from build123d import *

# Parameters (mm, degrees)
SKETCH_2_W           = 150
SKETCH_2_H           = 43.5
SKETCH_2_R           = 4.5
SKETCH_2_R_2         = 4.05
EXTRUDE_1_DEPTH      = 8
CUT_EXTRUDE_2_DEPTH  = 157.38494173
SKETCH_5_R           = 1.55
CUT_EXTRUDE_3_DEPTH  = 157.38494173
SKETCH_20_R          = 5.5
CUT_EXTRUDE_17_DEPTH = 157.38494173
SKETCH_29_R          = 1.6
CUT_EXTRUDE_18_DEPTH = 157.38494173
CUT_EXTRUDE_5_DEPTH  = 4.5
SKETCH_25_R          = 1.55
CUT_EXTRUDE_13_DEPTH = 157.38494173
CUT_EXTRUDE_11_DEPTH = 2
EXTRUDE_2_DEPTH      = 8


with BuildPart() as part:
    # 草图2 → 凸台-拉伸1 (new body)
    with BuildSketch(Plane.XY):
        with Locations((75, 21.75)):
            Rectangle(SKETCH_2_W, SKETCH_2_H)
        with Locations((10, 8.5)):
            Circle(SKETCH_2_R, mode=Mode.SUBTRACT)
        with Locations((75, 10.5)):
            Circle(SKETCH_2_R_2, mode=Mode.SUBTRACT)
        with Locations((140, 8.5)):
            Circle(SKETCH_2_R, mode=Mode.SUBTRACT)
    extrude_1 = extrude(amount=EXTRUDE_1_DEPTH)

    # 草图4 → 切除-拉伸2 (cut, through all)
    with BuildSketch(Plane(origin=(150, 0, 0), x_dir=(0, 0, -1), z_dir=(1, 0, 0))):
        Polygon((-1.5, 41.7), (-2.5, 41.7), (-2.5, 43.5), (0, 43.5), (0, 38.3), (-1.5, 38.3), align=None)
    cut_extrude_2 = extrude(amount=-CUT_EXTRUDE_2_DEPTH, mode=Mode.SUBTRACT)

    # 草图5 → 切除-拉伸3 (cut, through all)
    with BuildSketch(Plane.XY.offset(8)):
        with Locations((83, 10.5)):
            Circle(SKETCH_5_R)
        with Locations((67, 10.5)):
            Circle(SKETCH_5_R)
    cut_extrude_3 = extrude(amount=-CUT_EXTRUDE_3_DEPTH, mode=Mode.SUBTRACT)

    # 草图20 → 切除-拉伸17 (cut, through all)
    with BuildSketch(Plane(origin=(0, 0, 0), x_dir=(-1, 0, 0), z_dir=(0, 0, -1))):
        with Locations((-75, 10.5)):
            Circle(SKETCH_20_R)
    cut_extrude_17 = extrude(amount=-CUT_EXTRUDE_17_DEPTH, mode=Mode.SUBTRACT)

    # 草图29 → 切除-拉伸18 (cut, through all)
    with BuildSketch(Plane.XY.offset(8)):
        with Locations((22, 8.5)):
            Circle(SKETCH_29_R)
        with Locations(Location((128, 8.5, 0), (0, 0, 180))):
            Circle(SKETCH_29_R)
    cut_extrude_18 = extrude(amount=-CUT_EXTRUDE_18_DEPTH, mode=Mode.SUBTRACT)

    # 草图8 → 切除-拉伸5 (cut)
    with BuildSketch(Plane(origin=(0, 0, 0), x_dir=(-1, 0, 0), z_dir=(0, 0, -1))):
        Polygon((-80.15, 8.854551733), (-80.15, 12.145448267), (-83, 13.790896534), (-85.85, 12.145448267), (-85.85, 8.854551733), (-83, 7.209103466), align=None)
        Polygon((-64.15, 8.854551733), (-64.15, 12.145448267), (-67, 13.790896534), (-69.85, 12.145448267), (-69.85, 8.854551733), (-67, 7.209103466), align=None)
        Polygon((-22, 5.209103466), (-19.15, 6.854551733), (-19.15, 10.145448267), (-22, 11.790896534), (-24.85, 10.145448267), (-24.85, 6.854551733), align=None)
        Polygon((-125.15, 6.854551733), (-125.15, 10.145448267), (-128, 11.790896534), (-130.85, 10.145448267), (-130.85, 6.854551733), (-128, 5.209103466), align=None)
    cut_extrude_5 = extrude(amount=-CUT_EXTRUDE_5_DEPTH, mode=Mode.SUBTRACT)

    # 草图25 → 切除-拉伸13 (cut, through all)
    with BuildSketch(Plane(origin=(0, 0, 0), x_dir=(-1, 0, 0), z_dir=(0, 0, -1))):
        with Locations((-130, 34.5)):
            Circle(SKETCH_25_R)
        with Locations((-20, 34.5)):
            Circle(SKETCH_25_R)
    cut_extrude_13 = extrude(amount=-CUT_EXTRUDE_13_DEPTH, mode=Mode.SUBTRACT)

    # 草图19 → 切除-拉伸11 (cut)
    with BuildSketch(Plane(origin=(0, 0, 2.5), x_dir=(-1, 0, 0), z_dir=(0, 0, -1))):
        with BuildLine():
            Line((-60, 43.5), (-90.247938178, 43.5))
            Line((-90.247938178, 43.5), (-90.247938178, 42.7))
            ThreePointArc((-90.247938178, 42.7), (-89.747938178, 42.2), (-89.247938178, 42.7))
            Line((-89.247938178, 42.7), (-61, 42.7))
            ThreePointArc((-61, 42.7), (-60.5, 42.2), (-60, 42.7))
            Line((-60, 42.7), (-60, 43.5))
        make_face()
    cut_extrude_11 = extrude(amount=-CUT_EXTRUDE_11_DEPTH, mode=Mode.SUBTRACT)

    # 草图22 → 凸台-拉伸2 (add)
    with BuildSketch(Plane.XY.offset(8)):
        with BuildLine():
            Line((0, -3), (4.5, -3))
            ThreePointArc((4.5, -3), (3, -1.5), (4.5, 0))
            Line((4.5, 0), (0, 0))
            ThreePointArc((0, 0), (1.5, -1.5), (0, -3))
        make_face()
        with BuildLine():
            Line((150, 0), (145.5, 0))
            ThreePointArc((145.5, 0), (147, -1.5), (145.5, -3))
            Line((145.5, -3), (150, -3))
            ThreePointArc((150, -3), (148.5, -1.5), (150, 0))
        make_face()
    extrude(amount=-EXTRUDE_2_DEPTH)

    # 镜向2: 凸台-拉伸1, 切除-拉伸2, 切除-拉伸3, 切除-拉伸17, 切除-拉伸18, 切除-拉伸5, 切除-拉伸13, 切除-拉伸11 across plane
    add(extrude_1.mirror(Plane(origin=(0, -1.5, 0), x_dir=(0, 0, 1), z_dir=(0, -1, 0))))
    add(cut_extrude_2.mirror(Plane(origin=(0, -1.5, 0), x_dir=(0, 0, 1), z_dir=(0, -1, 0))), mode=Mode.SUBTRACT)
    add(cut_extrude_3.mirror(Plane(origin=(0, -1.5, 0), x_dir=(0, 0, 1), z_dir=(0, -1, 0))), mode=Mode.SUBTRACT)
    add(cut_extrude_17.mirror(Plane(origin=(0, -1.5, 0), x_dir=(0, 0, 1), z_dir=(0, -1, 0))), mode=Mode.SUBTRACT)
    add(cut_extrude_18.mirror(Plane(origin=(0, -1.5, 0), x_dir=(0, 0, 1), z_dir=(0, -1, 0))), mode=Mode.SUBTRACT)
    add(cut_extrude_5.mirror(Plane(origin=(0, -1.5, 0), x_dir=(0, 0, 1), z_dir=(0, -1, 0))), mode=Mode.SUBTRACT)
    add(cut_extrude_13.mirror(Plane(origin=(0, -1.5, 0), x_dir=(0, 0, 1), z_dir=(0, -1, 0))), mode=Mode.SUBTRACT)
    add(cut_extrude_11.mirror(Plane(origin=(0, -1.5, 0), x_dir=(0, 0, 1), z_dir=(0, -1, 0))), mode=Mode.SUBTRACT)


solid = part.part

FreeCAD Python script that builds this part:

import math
import FreeCAD as App
import Part
import Sketcher
Q = App.Units.Quantity


def add_polygon(sketch, points):
    """Adds a closed chain of lines whose ends are joined by coincident constraints."""
    first, n = sketch.GeometryCount, len(points)
    for a, b in zip(points, points[1:] + points[:1]):
        sketch.addGeometry(Part.LineSegment(App.Vector(*a, 0), App.Vector(*b, 0)), False)
    for i in range(n):
        sketch.addConstraint(Sketcher.Constraint("Coincident", first + i, 2, first + (i + 1) % n, 1))

doc = App.newDocument("Part")
params = doc.addObject("Spreadsheet::Sheet", "Params")
for row, (alias, value) in enumerate([
    ("sketch1_diameter", "9 mm"),
    ("sketch1_diameter2", "8.1 mm"),
    ("sketch1_width", "150 mm"),
    ("sketch1_height", "43.5 mm"),
    ("pad1_length", "8 mm"),
    ("sketch2_height", "1 mm"),
    ("sketch2_width", "3.4 mm"),
    ("sketch2_width2", "5.2 mm"),
    ("sketch2_height2", "1.5 mm"),
    ("sketch3_diameter", "3.1 mm"),
    ("sketch4_diameter", "11 mm"),
    ("sketch5_diameter", "3.2 mm"),
    ("pocket5_length", "4.5 mm"),
    ("sketch7_diameter", "3.1 mm"),
    ("sketch8_radius", "0.5 mm"),
    ("sketch8_height", "0.8 mm"),
    ("pocket7_length", "2 mm"),
    ("sketch9_radius", "1.5 mm"),
    ("sketch9_width", "4.5 mm"),
    ("pad2_length", "8 mm"),
], start=1):
    params.set(f"A{row}", alias)
    params.set(f"B{row}", "=" + value)
    params.setAlias(f"B{row}", alias)

body = doc.addObject("PartDesign::Body", "Body")

sketch1 = doc.addObject("Sketcher::SketchObject", "Sketch")
body.addObject(sketch1)
sketch1.AttachmentSupport = (doc.XY_Plane, [""])
sketch1.MapMode = "FlatFace"
add_polygon(sketch1, [(0, 43.5), (0, 0), (150, 0), (150, 43.5)])
sketch1.addGeometry(Part.Circle(App.Vector(10, 8.5, 0), App.Vector(0, 0, 1), 4.5), False)
sketch1.addGeometry(Part.Circle(App.Vector(140, 8.5, 0), App.Vector(0, 0, 1), 4.5), False)
sketch1.addGeometry(Part.Circle(App.Vector(75, 10.5, 0), App.Vector(0, 0, 1), 4), False)
sketch1.addConstraint([
    Sketcher.Constraint("Vertical", 0),
    Sketcher.Constraint("Horizontal", 1),
    Sketcher.Constraint("Vertical", 2),
    Sketcher.Constraint("Horizontal", 3),
    Sketcher.Constraint("Coincident", 0, 2, -1, 1),
    Sketcher.Constraint("Equal", 4, 5),
    Sketcher.Constraint("Horizontal", 4, 3, 5, 3),
    Sketcher.Constraint("Diameter", 4, Q("9 mm")),
    Sketcher.Constraint("Diameter", 6, Q("8.1 mm")),
    Sketcher.Constraint("DistanceX", 1, 1, 1, 2, Q("150 mm")),
    Sketcher.Constraint("DistanceY", 0, 2, 0, 1, Q("43.5 mm")),
    Sketcher.Constraint("DistanceX", -1, 1, 4, 3, Q("10 mm")),
    Sketcher.Constraint("DistanceX", -1, 1, 5, 3, Q("140 mm")),
    Sketcher.Constraint("DistanceX", -1, 1, 6, 3, Q("75 mm")),
    Sketcher.Constraint("DistanceY", 4, 3, 6, 3, Q("2 mm")),
    Sketcher.Constraint("DistanceY", 5, 3, 2, 2, Q("35 mm")),
])
sketch1.setExpression("Constraints[11]", "Params.sketch1_diameter")
sketch1.setExpression("Constraints[12]", "Params.sketch1_diameter2")
sketch1.setExpression("Constraints[13]", "Params.sketch1_width")
sketch1.setExpression("Constraints[14]", "Params.sketch1_height")
pad1 = doc.addObject("PartDesign::Pad", "Pad")
body.addObject(pad1)
pad1.Profile = sketch1
pad1.setExpression("Length", "Params.pad1_length")

sketch2 = doc.addObject("Sketcher::SketchObject", "Sketch001")
body.addObject(sketch2)
sketch2.AttachmentSupport = (doc.YZ_Plane, [""])
sketch2.MapMode = "FlatFace"
sketch2.AttachmentOffset = App.Placement(App.Vector(0, 0, 150), App.Rotation())
add_polygon(sketch2, [(41.7, 2.5), (41.7, 1.5), (38.3, 1.5), (38.3, 0), (43.5, 0), (43.5, 2.5)])
sketch2.addConstraint([
    Sketcher.Constraint("Vertical", 0),
    Sketcher.Constraint("Horizontal", 1),
    Sketcher.Constraint("Vertical", 2),
    Sketcher.Constraint("Horizontal", 3),
    Sketcher.Constraint("Vertical", 4),
    Sketcher.Constraint("Horizontal", 5),
    Sketcher.Constraint("PointOnObject", 2, 2, -1),
    Sketcher.Constraint("DistanceY", 0, 2, 0, 1, Q("1 mm")),
    Sketcher.Constraint("DistanceX", 1, 2, 1, 1, Q("3.4 mm")),
    Sketcher.Constraint("DistanceX", 3, 1, 3, 2, Q("5.2 mm")),
    Sketcher.Constraint("DistanceY", 2, 2, 2, 1, Q("1.5 mm")),
    Sketcher.Constraint("DistanceX", -1, 1, 0, 2, Q("41.7 mm")),
])
sketch2.setExpression("Constraints[13]", "Params.sketch2_height")
sketch2.setExpression("Constraints[14]", "Params.sketch2_width")
sketch2.setExpression("Constraints[15]", "Params.sketch2_width2")
sketch2.setExpression("Constraints[16]", "Params.sketch2_height2")
pocket1 = doc.addObject("PartDesign::Pocket", "Pocket")
body.addObject(pocket1)
pocket1.Profile = sketch2
pocket1.Type = "ThroughAll"

sketch3 = doc.addObject("Sketcher::SketchObject", "Sketch002")
body.addObject(sketch3)
sketch3.AttachmentSupport = (doc.XY_Plane, [""])
sketch3.MapMode = "FlatFace"
sketch3.AttachmentOffset = App.Placement(App.Vector(0, 0, 8), App.Rotation())
sketch3.addGeometry([
    Part.Circle(App.Vector(83, 10.5, 0), App.Vector(0, 0, 1), 1.6),
    Part.Circle(App.Vector(67, 10.5, 0), App.Vector(0, 0, 1), 1.6),
], False)
sketch3.addConstraint([
    Sketcher.Constraint("Equal", 0, 1),
    Sketcher.Constraint("Horizontal", 0, 3, 1, 3),
    Sketcher.Constraint("Diameter", 0, Q("3.1 mm")),
    Sketcher.Constraint("DistanceX", -1, 1, 0, 3, Q("83 mm")),
    Sketcher.Constraint("DistanceX", -1, 1, 1, 3, Q("67 mm")),
    Sketcher.Constraint("DistanceY", -1, 1, 0, 3, Q("10.5 mm")),
])
sketch3.setExpression("Constraints[2]", "Params.sketch3_diameter")
pocket2 = doc.addObject("PartDesign::Pocket", "Pocket001")
body.addObject(pocket2)
pocket2.Profile = sketch3
pocket2.Type = "ThroughAll"

sketch4 = doc.addObject("Sketcher::SketchObject", "Sketch003")
body.addObject(sketch4)
sketch4.AttachmentSupport = (doc.XY_Plane, [""])
sketch4.MapMode = "FlatFace"
sketch4.addGeometry(Part.Circle(App.Vector(75, 10, 0), App.Vector(0, 0, 1), 6), False)
sketch4.addConstraint([
    Sketcher.Constraint("Diameter", 0, Q("11 mm")),
    Sketcher.Constraint("DistanceX", -1, 1, 0, 3, Q("75 mm")),
    Sketcher.Constraint("DistanceY", -1, 1, 0, 3, Q("10.5 mm")),
])
sketch4.setExpression("Constraints[0]", "Params.sketch4_diameter")
pocket3 = doc.addObject("PartDesign::Pocket", "Pocket002")
body.addObject(pocket3)
pocket3.Profile = sketch4
pocket3.Type = "ThroughAll"
pocket3.Reversed = True

sketch5 = doc.addObject("Sketcher::SketchObject", "Sketch004")
body.addObject(sketch5)
sketch5.AttachmentSupport = (doc.XY_Plane, [""])
sketch5.MapMode = "FlatFace"
sketch5.AttachmentOffset = App.Placement(App.Vector(0, 0, 8), App.Rotation())
sketch5.addGeometry([
    Part.Circle(App.Vector(22, 8.5, 0), App.Vector(0, 0, 1), 1.6),
    Part.Circle(App.Vector(128, 8.5, 0), App.Vector(0, 0, 1), 1.6),
], False)
sketch5.addConstraint([
    Sketcher.Constraint("Equal", 0, 1),
    Sketcher.Constraint("Horizontal", 0, 3, 1, 3),
    Sketcher.Constraint("Diameter", 0, Q("3.2 mm")),
    Sketcher.Constraint("DistanceX", -1, 1, 0, 3, Q("22 mm")),
    Sketcher.Constraint("DistanceX", -1, 1, 1, 3, Q("128 mm")),
    Sketcher.Constraint("DistanceY", -1, 1, 0, 3, Q("8.5 mm")),
])
sketch5.setExpression("Constraints[2]", "Params.sketch5_diameter")
pocket4 = doc.addObject("PartDesign::Pocket", "Pocket003")
body.addObject(pocket4)
pocket4.Profile = sketch5
pocket4.Type = "ThroughAll"

sketch6 = doc.addObject("Sketcher::SketchObject", "Sketch005")
body.addObject(sketch6)
sketch6.AttachmentSupport = (doc.XY_Plane, [""])
sketch6.MapMode = "FlatFace"
add_polygon(sketch6, [(80.2, 8.9), (80.2, 12.1), (83, 13.8), (85.8, 12.1), (85.8, 8.9), (83, 7.2)])
add_polygon(sketch6, [(64.2, 8.9), (64.2, 12.1), (67, 13.8), (69.8, 12.1), (69.8, 8.9), (67, 7.2)])
add_polygon(sketch6, [(22, 5.2), (19.1, 6.9), (19.1, 10.1), (22, 11.8), (24.9, 10.1), (24.9, 6.9)])
add_polygon(sketch6, [(125.2, 6.9), (125.2, 10.1), (128, 11.8), (130.8, 10.1), (130.8, 6.9), (128, 5.2)])
sketch6.addConstraint([
    Sketcher.Constraint("Vertical", 0),
    Sketcher.Constraint("Vertical", 3),
    Sketcher.Constraint("Vertical", 6),
    Sketcher.Constraint("Vertical", 9),
    Sketcher.Constraint("Vertical", 13),
    Sketcher.Constraint("Vertical", 16),
    Sketcher.Constraint("Vertical", 18),
    Sketcher.Constraint("Vertical", 21),
    Sketcher.Constraint("Parallel", 1, 4),
    Sketcher.Constraint("Parallel", 2, 5),
    Sketcher.Constraint("Parallel", 4, 7),
    Sketcher.Constraint("Parallel", 5, 8),
    Sketcher.Constraint("Parallel", 7, 10),
    Sketcher.Constraint("Parallel", 8, 11),
    Sketcher.Constraint("Parallel", 11, 12),
    Sketcher.Constraint("Parallel", 10, 14),
    Sketcher.Constraint("Parallel", 12, 15),
    Sketcher.Constraint("Parallel", 14, 17),
    Sketcher.Constraint("Parallel", 17, 19),
    Sketcher.Constraint("Parallel", 15, 20),
    Sketcher.Constraint("Parallel", 19, 22),
    Sketcher.Constraint("Parallel", 20, 23),
    Sketcher.Constraint("Horizontal", 0, 2, 2, 2),
    Sketcher.Constraint("Horizontal", 3, 2, 5, 2),
    Sketcher.Constraint("Horizontal", 2, 2, 6, 2),
    Sketcher.Constraint("Horizontal", 1, 2, 7, 2),
    Sketcher.Constraint("Horizontal", 6, 2, 8, 2),
    Sketcher.Constraint("Horizontal", 5, 2, 9, 2),
    Sketcher.Constraint("Horizontal", 4, 2, 10, 2),
    Sketcher.Constraint("Horizontal", 13, 2, 15, 2),
    Sketcher.Constraint("Horizontal", 12, 2, 16, 2),
    Sketcher.Constraint("Horizontal", 15, 2, 18, 2),
    Sketcher.Constraint("Horizontal", 14, 2, 19, 2),
    Sketcher.Constraint("Horizontal", 18, 2, 20, 2),
    Sketcher.Constraint("Horizontal", 16, 2, 21, 2),
    Sketcher.Constraint("Horizontal", 17, 2, 22, 2),
    Sketcher.Constraint("Vertical", 1, 2, 4, 2),
    Sketcher.Constraint("Equal", 9, 13),
    Sketcher.Constraint("Equal", 11, 12),
    Sketcher.Constraint("Angle", 1, Q("30 deg")),
    Sketcher.Constraint("DistanceX", -1, 1, 1, 2, Q("83 mm")),
    Sketcher.Constraint("DistanceX", -1, 1, 7, 2, Q("67 mm")),
    Sketcher.Constraint("DistanceX", -1, 1, 14, 2, Q("22 mm")),
    Sketcher.Constraint("DistanceX", -1, 1, 19, 2, Q("128 mm")),
    Sketcher.Constraint("DistanceY", 12, 2, 11, 2, Q("2 mm")),
    Sketcher.Constraint("DistanceX", 0, 2, 2, 2, Q("5.7 mm")),
    Sketcher.Constraint("DistanceY", 0, 1, 0, 2, Q("3.290897 mm")),
    Sketcher.Constraint("DistanceY", -1, 1, 0, 2, Q("12.145448 mm")),
])
pocket5 = doc.addObject("PartDesign::Pocket", "Pocket004")
body.addObject(pocket5)
pocket5.Profile = sketch6
pocket5.setExpression("Length", "Params.pocket5_length")
pocket5.Reversed = True

sketch7 = doc.addObject("Sketcher::SketchObject", "Sketch006")
body.addObject(sketch7)
sketch7.AttachmentSupport = (doc.XY_Plane, [""])
sketch7.MapMode = "FlatFace"
sketch7.addGeometry([
    Part.Circle(App.Vector(130, 34.5, 0), App.Vector(0, 0, 1), 1.6),
    Part.Circle(App.Vector(20, 34.5, 0), App.Vector(0, 0, 1), 1.6),
], False)
sketch7.addConstraint([
    Sketcher.Constraint("Equal", 0, 1),
    Sketcher.Constraint("Horizontal", 0, 3, 1, 3),
    Sketcher.Constraint("Diameter", 0, Q("3.1 mm")),
    Sketcher.Constraint("DistanceX", -1, 1, 0, 3, Q("130 mm")),
    Sketcher.Constraint("DistanceX", -1, 1, 1, 3, Q("20 mm")),
    Sketcher.Constraint("DistanceY", -1, 1, 0, 3, Q("34.5 mm")),
])
sketch7.setExpression("Constraints[2]", "Params.sketch7_diameter")
pocket6 = doc.addObject("PartDesign::Pocket", "Pocket005")
body.addObject(pocket6)
pocket6.Profile = sketch7
pocket6.Type = "ThroughAll"
pocket6.Reversed = True

sketch8 = doc.addObject("Sketcher::SketchObject", "Sketch007")
body.addObject(sketch8)
sketch8.AttachmentSupport = (doc.XY_Plane, [""])
sketch8.MapMode = "FlatFace"
sketch8.AttachmentOffset = App.Placement(App.Vector(0, 0, 2.5), App.Rotation())
sketch8.addGeometry([
    Part.LineSegment(App.Vector(60, 43.5, 0), App.Vector(90.2, 43.5, 0)),
    Part.LineSegment(App.Vector(90.2, 43.5, 0), App.Vector(90.2, 42.7, 0)),
    Part.ArcOfCircle(Part.Circle(App.Vector(89.7, 42.7, 0), App.Vector(0, 0, 1), 0.5), math.radians(180), math.radians(360)),
    Part.LineSegment(App.Vector(89.2, 42.7, 0), App.Vector(61, 42.7, 0)),
    Part.ArcOfCircle(Part.Circle(App.Vector(60.5, 42.7, 0), App.Vector(0, 0, 1), 0.5), math.radians(180), math.radians(360)),
    Part.LineSegment(App.Vector(60, 42.7, 0), App.Vector(60, 43.5, 0)),
], False)
sketch8.addConstraint([
    Sketcher.Constraint("Coincident", 0, 2, 1, 1),
    Sketcher.Constraint("Tangent", 1, 2, 2, 2),
    Sketcher.Constraint("Coincident", 2, 1, 3, 1),
    Sketcher.Constraint("Coincident", 3, 2, 4, 2),
    Sketcher.Constraint("Tangent", 4, 1, 5, 1),
    Sketcher.Constraint("Coincident", 5, 2, 0, 1),
    Sketcher.Constraint("Horizontal", 0),
    Sketcher.Constraint("Vertical", 1),
    Sketcher.Constraint("Horizontal", 3),
    Sketcher.Constraint("Vertical", 5),
    Sketcher.Constraint("Equal", 2, 4),
    Sketcher.Constraint("Horizontal", 2, 3, 4, 3),
    Sketcher.Constraint("Horizontal", 1, 2, 2, 1),
    Sketcher.Constraint("Radius", 2, Q("0.5 mm")),
    Sketcher.Constraint("DistanceY", 1, 2, 1, 1, Q("0.8 mm")),
    Sketcher.Constraint("DistanceX", -1, 1, 3, 2, Q("61 mm")),
    Sketcher.Constraint("DistanceY", -1, 1, 2, 3, Q("42.7 mm")),
    Sketcher.Constraint("DistanceX", 0, 1, 0, 2, Q("30.247938 mm")),
])
sketch8.setExpression("Constraints[13]", "Params.sketch8_radius")
sketch8.setExpression("Constraints[14]", "Params.sketch8_height")
pocket7 = doc.addObject("PartDesign::Pocket", "Pocket006")
body.addObject(pocket7)
pocket7.Profile = sketch8
pocket7.setExpression("Length", "Params.pocket7_length")
pocket7.Reversed = True

sketch9 = doc.addObject("Sketcher::SketchObject", "Sketch008")
body.addObject(sketch9)
sketch9.AttachmentSupport = (doc.XY_Plane, [""])
sketch9.MapMode = "FlatFace"
sketch9.AttachmentOffset = App.Placement(App.Vector(0, 0, 8), App.Rotation())
sketch9.addGeometry([
    Part.LineSegment(App.Vector(0, -3, 0), App.Vector(4.5, -3, 0)),
    Part.ArcOfCircle(Part.Circle(App.Vector(4.5, -1.5, 0), App.Vector(0, 0, 1), 1.5), math.radians(90), math.radians(270)),
    Part.LineSegment(App.Vector(4.5, 0, 0), App.Vector(0, 0, 0)),
    Part.ArcOfCircle(Part.Circle(App.Vector(0, -1.5, 0), App.Vector(0, 0, 1), 1.5), math.radians(-90), math.radians(90)),
    Part.LineSegment(App.Vector(150, 0, 0), App.Vector(145.5, 0, 0)),
    Part.ArcOfCircle(Part.Circle(App.Vector(145.5, -1.5, 0), App.Vector(0, 0, 1), 1.5), math.radians(-90), math.radians(90)),
    Part.LineSegment(App.Vector(145.5, -3, 0), App.Vector(150, -3, 0)),
    Part.ArcOfCircle(Part.Circle(App.Vector(150, -1.5, 0), App.Vector(0, 0, 1), 1.5), math.radians(90), math.radians(270)),
], False)
sketch9.addConstraint([
    Sketcher.Constraint("Tangent", 0, 2, 1, 2),
    Sketcher.Constraint("Tangent", 1, 1, 2, 1),
    Sketcher.Constraint("Tangent", 2, 2, 3, 2),
    Sketcher.Constraint("Tangent", 3, 1, 0, 1),
    Sketcher.Constraint("Tangent", 4, 2, 5, 2),
    Sketcher.Constraint("Tangent", 5, 1, 6, 1),
    Sketcher.Constraint("Tangent", 6, 2, 7, 2),
    Sketcher.Constraint("Tangent", 7, 1, 4, 1),
    Sketcher.Constraint("Horizontal", 0),
    Sketcher.Constraint("Horizontal", 2),
    Sketcher.Constraint("Horizontal", 4),
    Sketcher.Constraint("Horizontal", 6),
    Sketcher.Constraint("Coincident", 2, 2, -1, 1),
    Sketcher.Constraint("Equal", 3, 5),
    Sketcher.Constraint("PointOnObject", 4, 2, -1),
    Sketcher.Constraint("Equal", 2, 4),
    Sketcher.Constraint("Radius", 1, Q("1.5 mm")),
    Sketcher.Constraint("DistanceX", 0, 1, 0, 2, Q("4.5 mm")),
    Sketcher.Constraint("DistanceX", -1, 1, 7, 3, Q("150 mm")),
])
sketch9.setExpression("Constraints[16]", "Params.sketch9_radius")
sketch9.setExpression("Constraints[17]", "Params.sketch9_width")
pad2 = doc.addObject("PartDesign::Pad", "Pad001")
body.addObject(pad2)
pad2.Profile = sketch9
pad2.setExpression("Length", "Params.pad2_length")
pad2.Reversed = True
doc.recompute()

datumplane = doc.addObject("PartDesign::Plane", "DatumPlane")
body.addObject(datumplane)
datumplane.AttachmentSupport = (doc.XZ_Plane, [""])
datumplane.MapMode = "FlatFace"
datumplane.AttachmentOffset = App.Placement(App.Vector(0, 0, 1.5), App.Rotation())
mirrored = doc.addObject("PartDesign::Mirrored", "Mirrored")
body.addObject(mirrored)
mirrored.Originals = [pad1, pocket1, pocket2, pocket3, pocket4, pocket5, pocket6, pocket7]
mirrored.MirrorPlane = (datumplane, [""])
body.Tip = mirrored

doc.recompute()
